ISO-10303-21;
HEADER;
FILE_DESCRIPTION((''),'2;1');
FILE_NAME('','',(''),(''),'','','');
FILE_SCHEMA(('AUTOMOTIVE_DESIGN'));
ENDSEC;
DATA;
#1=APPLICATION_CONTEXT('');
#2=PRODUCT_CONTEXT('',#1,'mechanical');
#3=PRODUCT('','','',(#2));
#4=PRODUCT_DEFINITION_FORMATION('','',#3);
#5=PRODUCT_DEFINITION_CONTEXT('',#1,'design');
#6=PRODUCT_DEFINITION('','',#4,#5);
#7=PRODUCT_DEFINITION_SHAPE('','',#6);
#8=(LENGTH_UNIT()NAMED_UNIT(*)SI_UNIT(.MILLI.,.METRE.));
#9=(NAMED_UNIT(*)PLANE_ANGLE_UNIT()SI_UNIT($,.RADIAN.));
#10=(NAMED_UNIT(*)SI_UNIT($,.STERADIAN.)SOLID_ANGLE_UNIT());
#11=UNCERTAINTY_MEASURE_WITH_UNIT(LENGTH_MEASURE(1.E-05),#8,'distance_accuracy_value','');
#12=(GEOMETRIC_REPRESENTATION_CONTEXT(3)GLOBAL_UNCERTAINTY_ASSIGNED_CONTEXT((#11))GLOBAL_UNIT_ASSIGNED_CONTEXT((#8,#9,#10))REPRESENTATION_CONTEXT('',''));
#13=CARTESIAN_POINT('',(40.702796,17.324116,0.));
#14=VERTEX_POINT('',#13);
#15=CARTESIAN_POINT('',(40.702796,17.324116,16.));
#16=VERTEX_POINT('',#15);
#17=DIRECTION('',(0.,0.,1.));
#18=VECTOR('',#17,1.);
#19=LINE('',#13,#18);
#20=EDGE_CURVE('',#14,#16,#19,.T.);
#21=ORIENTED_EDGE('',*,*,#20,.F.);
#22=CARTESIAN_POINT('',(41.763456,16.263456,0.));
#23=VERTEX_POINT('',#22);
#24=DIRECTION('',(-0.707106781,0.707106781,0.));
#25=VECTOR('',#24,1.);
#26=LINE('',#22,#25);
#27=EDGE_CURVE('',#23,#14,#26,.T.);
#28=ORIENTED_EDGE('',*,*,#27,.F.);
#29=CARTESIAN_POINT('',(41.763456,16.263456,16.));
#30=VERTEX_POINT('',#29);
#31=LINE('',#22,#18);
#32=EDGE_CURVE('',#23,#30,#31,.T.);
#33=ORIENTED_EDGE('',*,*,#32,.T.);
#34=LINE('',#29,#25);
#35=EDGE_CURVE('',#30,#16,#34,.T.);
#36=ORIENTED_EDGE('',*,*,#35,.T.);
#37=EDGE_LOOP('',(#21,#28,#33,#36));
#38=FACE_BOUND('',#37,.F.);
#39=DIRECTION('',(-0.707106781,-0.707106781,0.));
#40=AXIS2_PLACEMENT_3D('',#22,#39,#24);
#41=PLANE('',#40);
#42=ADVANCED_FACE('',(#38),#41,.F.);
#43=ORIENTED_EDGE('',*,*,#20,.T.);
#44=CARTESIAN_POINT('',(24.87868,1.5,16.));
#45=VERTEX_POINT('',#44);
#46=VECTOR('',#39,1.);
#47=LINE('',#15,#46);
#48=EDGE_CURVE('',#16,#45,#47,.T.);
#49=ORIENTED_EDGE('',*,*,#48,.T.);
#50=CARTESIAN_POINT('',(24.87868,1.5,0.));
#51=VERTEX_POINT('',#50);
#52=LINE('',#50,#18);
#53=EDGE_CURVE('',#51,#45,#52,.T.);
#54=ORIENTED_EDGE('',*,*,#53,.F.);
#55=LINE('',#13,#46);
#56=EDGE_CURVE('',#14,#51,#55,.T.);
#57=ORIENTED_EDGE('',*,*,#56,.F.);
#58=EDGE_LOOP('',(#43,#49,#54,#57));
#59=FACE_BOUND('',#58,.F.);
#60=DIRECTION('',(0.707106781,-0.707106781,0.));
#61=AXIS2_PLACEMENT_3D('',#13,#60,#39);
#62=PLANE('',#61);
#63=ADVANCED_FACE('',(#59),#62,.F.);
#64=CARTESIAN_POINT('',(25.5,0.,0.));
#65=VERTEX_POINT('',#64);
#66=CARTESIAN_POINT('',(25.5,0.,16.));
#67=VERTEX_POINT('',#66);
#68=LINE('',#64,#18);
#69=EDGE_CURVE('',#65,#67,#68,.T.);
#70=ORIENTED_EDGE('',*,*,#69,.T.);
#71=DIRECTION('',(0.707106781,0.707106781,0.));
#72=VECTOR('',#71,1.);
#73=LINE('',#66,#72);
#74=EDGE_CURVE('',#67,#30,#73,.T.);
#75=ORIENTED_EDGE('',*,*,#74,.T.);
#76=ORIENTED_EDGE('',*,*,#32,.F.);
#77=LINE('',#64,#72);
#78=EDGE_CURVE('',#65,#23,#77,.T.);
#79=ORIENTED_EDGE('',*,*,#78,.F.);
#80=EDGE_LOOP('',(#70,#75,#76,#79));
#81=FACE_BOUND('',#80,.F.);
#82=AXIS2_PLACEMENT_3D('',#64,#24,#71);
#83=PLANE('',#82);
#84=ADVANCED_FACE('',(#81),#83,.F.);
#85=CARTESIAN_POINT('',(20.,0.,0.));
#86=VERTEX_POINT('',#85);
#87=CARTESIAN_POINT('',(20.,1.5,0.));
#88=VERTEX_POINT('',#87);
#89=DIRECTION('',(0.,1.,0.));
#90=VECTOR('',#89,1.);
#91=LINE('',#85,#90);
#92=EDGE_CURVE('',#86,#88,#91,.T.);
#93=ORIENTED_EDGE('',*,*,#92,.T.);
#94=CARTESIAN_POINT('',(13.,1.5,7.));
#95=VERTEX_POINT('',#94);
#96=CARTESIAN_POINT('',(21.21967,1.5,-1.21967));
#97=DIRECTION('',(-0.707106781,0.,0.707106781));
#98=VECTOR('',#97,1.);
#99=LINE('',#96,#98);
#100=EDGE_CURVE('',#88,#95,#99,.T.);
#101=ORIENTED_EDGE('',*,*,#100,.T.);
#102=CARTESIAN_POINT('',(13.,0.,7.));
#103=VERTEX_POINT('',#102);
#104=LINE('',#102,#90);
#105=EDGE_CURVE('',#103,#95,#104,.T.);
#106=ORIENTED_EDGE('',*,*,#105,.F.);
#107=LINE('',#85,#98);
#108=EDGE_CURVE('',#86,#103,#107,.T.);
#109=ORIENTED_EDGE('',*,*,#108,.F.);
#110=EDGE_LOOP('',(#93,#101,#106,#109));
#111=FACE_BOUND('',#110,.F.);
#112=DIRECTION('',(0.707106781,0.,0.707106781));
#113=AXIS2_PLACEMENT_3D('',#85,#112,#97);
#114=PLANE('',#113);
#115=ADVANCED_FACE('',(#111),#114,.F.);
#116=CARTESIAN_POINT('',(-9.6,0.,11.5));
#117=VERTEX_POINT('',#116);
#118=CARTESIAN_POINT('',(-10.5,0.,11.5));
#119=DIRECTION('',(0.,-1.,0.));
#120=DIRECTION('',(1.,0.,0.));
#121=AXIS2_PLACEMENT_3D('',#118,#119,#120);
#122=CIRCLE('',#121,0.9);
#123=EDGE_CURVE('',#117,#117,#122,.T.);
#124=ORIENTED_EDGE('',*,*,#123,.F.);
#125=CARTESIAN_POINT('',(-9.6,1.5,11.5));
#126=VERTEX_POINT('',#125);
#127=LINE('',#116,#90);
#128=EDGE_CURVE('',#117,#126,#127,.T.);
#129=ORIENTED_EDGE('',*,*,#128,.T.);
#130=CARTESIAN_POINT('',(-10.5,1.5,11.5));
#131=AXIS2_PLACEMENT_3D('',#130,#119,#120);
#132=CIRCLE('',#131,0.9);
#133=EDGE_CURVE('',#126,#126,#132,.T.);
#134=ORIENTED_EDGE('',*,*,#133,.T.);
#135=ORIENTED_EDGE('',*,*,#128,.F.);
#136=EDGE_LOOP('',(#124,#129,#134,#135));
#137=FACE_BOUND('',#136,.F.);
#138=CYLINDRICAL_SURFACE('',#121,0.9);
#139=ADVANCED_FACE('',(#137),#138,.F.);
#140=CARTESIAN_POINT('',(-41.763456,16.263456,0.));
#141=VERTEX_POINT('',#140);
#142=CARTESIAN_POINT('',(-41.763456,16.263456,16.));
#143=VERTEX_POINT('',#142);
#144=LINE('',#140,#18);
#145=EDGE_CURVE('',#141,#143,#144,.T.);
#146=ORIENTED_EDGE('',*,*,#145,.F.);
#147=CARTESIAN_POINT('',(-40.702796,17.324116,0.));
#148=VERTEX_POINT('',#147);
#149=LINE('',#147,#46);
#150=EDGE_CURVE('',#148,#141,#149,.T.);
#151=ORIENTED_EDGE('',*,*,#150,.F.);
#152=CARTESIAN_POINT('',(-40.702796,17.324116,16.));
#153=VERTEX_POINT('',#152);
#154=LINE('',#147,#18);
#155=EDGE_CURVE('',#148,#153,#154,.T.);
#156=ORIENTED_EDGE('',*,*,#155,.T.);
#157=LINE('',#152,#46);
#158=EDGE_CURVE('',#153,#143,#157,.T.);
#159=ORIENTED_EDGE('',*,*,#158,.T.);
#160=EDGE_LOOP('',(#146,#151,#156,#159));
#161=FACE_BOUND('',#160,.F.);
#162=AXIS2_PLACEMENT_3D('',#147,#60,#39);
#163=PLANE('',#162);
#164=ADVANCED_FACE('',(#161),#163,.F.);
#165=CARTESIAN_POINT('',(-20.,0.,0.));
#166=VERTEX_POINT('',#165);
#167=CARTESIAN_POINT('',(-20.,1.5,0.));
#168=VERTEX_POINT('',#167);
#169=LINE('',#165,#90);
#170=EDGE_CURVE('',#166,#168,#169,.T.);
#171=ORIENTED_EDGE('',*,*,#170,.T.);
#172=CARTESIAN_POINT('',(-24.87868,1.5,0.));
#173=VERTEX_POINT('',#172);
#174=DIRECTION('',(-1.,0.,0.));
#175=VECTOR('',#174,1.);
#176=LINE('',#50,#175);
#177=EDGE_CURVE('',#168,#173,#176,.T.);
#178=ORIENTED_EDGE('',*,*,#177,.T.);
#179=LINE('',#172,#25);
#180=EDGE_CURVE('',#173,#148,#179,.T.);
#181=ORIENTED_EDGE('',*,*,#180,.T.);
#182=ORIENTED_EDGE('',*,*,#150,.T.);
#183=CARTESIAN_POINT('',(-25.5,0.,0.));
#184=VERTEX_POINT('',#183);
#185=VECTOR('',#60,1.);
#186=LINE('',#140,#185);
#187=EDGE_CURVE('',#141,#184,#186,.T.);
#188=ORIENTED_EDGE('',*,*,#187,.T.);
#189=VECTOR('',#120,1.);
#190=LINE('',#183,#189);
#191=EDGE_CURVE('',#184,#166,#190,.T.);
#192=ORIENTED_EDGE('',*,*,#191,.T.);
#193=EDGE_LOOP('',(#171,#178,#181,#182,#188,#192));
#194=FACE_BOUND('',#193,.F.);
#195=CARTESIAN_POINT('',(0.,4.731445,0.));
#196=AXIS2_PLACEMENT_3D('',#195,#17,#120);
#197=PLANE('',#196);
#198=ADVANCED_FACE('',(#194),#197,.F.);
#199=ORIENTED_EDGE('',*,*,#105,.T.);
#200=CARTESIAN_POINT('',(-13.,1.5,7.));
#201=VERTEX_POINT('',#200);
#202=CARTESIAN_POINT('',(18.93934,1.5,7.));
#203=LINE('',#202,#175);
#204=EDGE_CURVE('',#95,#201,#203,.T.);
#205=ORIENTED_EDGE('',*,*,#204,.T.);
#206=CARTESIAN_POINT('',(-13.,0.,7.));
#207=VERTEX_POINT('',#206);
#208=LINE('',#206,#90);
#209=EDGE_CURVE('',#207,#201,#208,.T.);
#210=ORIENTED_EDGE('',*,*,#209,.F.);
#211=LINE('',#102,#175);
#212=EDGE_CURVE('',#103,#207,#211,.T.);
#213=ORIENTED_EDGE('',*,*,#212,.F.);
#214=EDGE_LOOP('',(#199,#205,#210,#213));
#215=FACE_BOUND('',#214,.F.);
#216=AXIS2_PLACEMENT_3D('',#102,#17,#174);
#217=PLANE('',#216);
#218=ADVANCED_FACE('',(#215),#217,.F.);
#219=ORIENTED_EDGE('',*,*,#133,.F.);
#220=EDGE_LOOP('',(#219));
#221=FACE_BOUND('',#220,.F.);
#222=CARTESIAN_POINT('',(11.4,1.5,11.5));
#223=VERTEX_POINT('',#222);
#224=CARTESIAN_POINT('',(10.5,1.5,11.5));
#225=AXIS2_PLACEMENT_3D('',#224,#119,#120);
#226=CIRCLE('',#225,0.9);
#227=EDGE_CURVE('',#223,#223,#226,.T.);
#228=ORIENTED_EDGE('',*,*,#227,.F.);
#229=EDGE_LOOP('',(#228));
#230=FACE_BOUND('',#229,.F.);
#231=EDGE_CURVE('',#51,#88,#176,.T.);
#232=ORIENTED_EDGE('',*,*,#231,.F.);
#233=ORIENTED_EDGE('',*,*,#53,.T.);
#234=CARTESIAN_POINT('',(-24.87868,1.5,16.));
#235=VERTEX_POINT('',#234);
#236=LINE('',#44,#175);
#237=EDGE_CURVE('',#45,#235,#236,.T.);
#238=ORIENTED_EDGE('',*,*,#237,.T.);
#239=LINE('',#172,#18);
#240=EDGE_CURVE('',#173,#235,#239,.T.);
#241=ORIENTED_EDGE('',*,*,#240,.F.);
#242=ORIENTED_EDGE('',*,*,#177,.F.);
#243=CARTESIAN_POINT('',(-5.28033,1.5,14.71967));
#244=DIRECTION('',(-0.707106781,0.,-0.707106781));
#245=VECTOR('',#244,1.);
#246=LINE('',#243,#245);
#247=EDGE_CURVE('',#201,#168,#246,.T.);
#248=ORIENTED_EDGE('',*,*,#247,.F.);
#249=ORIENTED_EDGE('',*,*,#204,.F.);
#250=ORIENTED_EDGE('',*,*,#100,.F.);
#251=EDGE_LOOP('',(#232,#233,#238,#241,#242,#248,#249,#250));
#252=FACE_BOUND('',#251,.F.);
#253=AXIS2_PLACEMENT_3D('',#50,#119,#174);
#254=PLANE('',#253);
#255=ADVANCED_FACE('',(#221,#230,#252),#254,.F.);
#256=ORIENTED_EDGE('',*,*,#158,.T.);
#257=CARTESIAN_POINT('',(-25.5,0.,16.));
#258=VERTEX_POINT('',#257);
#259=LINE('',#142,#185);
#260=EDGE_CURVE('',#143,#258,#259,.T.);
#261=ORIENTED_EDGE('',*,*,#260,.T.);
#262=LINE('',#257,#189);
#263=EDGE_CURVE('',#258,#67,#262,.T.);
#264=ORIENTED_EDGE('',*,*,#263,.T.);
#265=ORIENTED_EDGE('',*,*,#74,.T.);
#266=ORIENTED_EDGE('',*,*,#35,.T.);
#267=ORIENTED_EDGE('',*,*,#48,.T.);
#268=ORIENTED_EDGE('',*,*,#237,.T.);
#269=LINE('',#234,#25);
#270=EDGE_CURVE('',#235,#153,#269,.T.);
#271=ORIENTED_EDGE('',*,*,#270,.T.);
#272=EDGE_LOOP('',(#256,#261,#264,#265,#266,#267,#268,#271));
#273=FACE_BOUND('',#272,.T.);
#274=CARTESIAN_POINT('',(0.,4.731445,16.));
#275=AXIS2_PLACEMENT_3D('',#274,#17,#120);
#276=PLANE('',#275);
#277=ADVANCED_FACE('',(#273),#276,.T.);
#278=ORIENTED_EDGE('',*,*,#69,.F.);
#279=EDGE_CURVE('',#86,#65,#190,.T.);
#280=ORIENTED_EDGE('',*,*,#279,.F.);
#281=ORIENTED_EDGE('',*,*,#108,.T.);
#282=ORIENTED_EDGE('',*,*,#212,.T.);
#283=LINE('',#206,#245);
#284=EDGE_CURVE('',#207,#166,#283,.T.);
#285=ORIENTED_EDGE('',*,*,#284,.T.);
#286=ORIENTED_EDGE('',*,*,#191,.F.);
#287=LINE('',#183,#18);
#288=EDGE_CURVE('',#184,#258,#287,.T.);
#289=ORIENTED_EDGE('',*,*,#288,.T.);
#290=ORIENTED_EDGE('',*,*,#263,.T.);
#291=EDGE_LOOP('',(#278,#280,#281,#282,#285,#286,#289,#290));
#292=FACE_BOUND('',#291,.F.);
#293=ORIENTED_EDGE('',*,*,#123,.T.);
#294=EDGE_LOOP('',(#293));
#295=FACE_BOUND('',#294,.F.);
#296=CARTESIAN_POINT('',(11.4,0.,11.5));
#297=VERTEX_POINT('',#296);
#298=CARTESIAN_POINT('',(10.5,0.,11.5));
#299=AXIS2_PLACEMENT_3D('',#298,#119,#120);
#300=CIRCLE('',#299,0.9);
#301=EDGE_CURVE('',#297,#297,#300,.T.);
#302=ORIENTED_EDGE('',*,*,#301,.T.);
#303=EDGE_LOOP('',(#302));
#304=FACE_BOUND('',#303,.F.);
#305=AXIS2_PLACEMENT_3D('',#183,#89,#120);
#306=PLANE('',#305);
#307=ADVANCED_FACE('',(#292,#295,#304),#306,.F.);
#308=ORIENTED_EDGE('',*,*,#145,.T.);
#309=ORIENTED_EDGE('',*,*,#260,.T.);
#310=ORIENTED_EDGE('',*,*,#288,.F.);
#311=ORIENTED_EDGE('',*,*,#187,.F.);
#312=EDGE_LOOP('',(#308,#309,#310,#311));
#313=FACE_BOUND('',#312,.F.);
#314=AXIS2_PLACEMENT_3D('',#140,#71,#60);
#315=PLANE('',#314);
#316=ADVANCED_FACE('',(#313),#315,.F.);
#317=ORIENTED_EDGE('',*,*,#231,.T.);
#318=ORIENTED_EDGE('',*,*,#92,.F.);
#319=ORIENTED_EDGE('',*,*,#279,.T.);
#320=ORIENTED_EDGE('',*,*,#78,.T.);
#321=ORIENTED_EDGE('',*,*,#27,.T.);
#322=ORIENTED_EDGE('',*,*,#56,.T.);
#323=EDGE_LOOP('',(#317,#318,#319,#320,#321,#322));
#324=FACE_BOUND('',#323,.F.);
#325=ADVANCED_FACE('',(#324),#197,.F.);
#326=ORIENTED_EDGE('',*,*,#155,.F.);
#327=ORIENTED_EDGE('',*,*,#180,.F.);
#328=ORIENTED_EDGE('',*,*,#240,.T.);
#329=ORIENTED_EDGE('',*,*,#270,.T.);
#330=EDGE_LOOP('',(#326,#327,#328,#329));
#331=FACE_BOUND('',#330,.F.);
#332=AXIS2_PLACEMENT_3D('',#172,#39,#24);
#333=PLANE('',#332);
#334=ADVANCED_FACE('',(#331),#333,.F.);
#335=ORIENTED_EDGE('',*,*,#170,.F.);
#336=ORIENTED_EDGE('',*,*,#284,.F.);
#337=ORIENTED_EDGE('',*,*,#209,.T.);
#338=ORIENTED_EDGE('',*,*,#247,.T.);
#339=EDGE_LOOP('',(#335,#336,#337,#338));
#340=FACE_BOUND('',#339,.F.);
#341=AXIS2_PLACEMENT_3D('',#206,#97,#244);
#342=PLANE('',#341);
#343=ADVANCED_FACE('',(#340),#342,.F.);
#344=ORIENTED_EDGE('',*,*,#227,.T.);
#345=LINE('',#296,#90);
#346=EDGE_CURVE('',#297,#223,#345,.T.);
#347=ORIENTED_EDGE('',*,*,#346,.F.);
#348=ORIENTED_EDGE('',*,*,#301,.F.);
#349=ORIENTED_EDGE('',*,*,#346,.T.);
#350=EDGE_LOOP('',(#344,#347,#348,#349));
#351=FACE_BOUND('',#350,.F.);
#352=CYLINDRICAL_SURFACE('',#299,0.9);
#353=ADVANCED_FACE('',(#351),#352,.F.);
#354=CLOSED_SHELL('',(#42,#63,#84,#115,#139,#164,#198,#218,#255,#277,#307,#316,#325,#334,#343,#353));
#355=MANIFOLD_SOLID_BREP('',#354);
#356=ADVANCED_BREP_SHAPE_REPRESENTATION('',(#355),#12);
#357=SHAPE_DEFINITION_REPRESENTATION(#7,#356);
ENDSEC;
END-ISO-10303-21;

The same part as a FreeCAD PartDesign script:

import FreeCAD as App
import Part
import Sketcher
Q = App.Units.Quantity


def add_polygon(sketch, points):
    """Adds a closed chain of lines whose ends are joined by coincident constraints."""
    first, n = sketch.GeometryCount, len(points)
    for a, b in zip(points, points[1:] + points[:1]):
        sketch.addGeometry(Part.LineSegment(App.Vector(*a, 0), App.Vector(*b, 0)), False)
    for i in range(n):
        sketch.addConstraint(Sketcher.Constraint("Coincident", first + i, 2, first + (i + 1) % n, 1))

doc = App.newDocument("Part")
body = doc.addObject("PartDesign::Body", "Body")

sketch1 = body.newObject("Sketcher::SketchObject", "Sketch")
sketch1.AttachmentSupport = (doc.getObject("XY_Plane"), [""])
sketch1.MapMode = "FlatFace"
add_polygon(sketch1, [(-25.5, 0), (25.5, 0), (41.8, 16.3), (40.7, 17.3), (24.9, 1.5), (-24.9, 1.5), (-40.7, 17.3), (-41.8, 16.3)])
sketch1.addConstraint([
    Sketcher.Constraint("Horizontal", 0),
    Sketcher.Constraint("Horizontal", 4),
    Sketcher.Constraint("Symmetric", 0, 2, 7, 2, -1, 1),
    Sketcher.Constraint("Symmetric", 2, 2, 5, 2, -2),
    Sketcher.Constraint("Symmetric", 1, 2, 6, 2, -2),
    Sketcher.Constraint("Perpendicular", 1, 2),
    Sketcher.Constraint("Perpendicular", 2, 3),
    Sketcher.Constraint("Perpendicular", 3, 5),
    Sketcher.Constraint("Perpendicular", 5, 6),
    Sketcher.Constraint("DistanceX", 0, 1, 0, 2, Q("51 mm")),
    Sketcher.Constraint("Distance", 1, Q("23 mm")),
    Sketcher.Constraint("Distance", 2, Q("1.5 mm")),
    Sketcher.Constraint("DistanceY", -1, 1, 3, 2, Q("1.5 mm")),
])
pad1 = body.newObject("PartDesign::Pad", "Pad")
pad1.Profile = sketch1
pad1.Length = 16

sketch2 = body.newObject("Sketcher::SketchObject", "Sketch001")
sketch2.AttachmentSupport = (doc.getObject("XZ_Plane"), [""])
sketch2.MapMode = "FlatFace"
sketch2.addGeometry(Part.Circle(App.Vector(-10.5, 11.5, 0), App.Vector(0, 0, 1), 0.9), False)
sketch2.addGeometry(Part.Circle(App.Vector(10.5, 11.5, 0), App.Vector(0, 0, 1), 0.9), False)
add_polygon(sketch2, [(-13, 7), (-20, 0), (20, 0), (13, 7)])
sketch2.addConstraint([
    Sketcher.Constraint("Horizontal", 3),
    Sketcher.Constraint("Horizontal", 5),
    Sketcher.Constraint("Equal", 0, 1),
    Sketcher.Constraint("Symmetric", 2, 2, 3, 2, -1, 1),
    Sketcher.Constraint("Symmetric", 0, 3, 1, 3, -2),
    Sketcher.Constraint("Perpendicular", 2, 4),
    Sketcher.Constraint("Equal", 2, 4),
    Sketcher.Constraint("Diameter", 0, Q("1.8 mm")),
    Sketcher.Constraint("DistanceX", 3, 1, 3, 2, Q("40 mm")),
    Sketcher.Constraint("DistanceX", 5, 2, 5, 1, Q("26 mm")),
    Sketcher.Constraint("DistanceX", 0, 3, 1, 3, Q("21 mm")),
    Sketcher.Constraint("DistanceY", -1, 1, 0, 3, Q("11.5 mm")),
])
pocket1 = body.newObject("PartDesign::Pocket", "Pocket")
pocket1.Profile = sketch2
pocket1.Type = "ThroughAll"

doc.recompute()
